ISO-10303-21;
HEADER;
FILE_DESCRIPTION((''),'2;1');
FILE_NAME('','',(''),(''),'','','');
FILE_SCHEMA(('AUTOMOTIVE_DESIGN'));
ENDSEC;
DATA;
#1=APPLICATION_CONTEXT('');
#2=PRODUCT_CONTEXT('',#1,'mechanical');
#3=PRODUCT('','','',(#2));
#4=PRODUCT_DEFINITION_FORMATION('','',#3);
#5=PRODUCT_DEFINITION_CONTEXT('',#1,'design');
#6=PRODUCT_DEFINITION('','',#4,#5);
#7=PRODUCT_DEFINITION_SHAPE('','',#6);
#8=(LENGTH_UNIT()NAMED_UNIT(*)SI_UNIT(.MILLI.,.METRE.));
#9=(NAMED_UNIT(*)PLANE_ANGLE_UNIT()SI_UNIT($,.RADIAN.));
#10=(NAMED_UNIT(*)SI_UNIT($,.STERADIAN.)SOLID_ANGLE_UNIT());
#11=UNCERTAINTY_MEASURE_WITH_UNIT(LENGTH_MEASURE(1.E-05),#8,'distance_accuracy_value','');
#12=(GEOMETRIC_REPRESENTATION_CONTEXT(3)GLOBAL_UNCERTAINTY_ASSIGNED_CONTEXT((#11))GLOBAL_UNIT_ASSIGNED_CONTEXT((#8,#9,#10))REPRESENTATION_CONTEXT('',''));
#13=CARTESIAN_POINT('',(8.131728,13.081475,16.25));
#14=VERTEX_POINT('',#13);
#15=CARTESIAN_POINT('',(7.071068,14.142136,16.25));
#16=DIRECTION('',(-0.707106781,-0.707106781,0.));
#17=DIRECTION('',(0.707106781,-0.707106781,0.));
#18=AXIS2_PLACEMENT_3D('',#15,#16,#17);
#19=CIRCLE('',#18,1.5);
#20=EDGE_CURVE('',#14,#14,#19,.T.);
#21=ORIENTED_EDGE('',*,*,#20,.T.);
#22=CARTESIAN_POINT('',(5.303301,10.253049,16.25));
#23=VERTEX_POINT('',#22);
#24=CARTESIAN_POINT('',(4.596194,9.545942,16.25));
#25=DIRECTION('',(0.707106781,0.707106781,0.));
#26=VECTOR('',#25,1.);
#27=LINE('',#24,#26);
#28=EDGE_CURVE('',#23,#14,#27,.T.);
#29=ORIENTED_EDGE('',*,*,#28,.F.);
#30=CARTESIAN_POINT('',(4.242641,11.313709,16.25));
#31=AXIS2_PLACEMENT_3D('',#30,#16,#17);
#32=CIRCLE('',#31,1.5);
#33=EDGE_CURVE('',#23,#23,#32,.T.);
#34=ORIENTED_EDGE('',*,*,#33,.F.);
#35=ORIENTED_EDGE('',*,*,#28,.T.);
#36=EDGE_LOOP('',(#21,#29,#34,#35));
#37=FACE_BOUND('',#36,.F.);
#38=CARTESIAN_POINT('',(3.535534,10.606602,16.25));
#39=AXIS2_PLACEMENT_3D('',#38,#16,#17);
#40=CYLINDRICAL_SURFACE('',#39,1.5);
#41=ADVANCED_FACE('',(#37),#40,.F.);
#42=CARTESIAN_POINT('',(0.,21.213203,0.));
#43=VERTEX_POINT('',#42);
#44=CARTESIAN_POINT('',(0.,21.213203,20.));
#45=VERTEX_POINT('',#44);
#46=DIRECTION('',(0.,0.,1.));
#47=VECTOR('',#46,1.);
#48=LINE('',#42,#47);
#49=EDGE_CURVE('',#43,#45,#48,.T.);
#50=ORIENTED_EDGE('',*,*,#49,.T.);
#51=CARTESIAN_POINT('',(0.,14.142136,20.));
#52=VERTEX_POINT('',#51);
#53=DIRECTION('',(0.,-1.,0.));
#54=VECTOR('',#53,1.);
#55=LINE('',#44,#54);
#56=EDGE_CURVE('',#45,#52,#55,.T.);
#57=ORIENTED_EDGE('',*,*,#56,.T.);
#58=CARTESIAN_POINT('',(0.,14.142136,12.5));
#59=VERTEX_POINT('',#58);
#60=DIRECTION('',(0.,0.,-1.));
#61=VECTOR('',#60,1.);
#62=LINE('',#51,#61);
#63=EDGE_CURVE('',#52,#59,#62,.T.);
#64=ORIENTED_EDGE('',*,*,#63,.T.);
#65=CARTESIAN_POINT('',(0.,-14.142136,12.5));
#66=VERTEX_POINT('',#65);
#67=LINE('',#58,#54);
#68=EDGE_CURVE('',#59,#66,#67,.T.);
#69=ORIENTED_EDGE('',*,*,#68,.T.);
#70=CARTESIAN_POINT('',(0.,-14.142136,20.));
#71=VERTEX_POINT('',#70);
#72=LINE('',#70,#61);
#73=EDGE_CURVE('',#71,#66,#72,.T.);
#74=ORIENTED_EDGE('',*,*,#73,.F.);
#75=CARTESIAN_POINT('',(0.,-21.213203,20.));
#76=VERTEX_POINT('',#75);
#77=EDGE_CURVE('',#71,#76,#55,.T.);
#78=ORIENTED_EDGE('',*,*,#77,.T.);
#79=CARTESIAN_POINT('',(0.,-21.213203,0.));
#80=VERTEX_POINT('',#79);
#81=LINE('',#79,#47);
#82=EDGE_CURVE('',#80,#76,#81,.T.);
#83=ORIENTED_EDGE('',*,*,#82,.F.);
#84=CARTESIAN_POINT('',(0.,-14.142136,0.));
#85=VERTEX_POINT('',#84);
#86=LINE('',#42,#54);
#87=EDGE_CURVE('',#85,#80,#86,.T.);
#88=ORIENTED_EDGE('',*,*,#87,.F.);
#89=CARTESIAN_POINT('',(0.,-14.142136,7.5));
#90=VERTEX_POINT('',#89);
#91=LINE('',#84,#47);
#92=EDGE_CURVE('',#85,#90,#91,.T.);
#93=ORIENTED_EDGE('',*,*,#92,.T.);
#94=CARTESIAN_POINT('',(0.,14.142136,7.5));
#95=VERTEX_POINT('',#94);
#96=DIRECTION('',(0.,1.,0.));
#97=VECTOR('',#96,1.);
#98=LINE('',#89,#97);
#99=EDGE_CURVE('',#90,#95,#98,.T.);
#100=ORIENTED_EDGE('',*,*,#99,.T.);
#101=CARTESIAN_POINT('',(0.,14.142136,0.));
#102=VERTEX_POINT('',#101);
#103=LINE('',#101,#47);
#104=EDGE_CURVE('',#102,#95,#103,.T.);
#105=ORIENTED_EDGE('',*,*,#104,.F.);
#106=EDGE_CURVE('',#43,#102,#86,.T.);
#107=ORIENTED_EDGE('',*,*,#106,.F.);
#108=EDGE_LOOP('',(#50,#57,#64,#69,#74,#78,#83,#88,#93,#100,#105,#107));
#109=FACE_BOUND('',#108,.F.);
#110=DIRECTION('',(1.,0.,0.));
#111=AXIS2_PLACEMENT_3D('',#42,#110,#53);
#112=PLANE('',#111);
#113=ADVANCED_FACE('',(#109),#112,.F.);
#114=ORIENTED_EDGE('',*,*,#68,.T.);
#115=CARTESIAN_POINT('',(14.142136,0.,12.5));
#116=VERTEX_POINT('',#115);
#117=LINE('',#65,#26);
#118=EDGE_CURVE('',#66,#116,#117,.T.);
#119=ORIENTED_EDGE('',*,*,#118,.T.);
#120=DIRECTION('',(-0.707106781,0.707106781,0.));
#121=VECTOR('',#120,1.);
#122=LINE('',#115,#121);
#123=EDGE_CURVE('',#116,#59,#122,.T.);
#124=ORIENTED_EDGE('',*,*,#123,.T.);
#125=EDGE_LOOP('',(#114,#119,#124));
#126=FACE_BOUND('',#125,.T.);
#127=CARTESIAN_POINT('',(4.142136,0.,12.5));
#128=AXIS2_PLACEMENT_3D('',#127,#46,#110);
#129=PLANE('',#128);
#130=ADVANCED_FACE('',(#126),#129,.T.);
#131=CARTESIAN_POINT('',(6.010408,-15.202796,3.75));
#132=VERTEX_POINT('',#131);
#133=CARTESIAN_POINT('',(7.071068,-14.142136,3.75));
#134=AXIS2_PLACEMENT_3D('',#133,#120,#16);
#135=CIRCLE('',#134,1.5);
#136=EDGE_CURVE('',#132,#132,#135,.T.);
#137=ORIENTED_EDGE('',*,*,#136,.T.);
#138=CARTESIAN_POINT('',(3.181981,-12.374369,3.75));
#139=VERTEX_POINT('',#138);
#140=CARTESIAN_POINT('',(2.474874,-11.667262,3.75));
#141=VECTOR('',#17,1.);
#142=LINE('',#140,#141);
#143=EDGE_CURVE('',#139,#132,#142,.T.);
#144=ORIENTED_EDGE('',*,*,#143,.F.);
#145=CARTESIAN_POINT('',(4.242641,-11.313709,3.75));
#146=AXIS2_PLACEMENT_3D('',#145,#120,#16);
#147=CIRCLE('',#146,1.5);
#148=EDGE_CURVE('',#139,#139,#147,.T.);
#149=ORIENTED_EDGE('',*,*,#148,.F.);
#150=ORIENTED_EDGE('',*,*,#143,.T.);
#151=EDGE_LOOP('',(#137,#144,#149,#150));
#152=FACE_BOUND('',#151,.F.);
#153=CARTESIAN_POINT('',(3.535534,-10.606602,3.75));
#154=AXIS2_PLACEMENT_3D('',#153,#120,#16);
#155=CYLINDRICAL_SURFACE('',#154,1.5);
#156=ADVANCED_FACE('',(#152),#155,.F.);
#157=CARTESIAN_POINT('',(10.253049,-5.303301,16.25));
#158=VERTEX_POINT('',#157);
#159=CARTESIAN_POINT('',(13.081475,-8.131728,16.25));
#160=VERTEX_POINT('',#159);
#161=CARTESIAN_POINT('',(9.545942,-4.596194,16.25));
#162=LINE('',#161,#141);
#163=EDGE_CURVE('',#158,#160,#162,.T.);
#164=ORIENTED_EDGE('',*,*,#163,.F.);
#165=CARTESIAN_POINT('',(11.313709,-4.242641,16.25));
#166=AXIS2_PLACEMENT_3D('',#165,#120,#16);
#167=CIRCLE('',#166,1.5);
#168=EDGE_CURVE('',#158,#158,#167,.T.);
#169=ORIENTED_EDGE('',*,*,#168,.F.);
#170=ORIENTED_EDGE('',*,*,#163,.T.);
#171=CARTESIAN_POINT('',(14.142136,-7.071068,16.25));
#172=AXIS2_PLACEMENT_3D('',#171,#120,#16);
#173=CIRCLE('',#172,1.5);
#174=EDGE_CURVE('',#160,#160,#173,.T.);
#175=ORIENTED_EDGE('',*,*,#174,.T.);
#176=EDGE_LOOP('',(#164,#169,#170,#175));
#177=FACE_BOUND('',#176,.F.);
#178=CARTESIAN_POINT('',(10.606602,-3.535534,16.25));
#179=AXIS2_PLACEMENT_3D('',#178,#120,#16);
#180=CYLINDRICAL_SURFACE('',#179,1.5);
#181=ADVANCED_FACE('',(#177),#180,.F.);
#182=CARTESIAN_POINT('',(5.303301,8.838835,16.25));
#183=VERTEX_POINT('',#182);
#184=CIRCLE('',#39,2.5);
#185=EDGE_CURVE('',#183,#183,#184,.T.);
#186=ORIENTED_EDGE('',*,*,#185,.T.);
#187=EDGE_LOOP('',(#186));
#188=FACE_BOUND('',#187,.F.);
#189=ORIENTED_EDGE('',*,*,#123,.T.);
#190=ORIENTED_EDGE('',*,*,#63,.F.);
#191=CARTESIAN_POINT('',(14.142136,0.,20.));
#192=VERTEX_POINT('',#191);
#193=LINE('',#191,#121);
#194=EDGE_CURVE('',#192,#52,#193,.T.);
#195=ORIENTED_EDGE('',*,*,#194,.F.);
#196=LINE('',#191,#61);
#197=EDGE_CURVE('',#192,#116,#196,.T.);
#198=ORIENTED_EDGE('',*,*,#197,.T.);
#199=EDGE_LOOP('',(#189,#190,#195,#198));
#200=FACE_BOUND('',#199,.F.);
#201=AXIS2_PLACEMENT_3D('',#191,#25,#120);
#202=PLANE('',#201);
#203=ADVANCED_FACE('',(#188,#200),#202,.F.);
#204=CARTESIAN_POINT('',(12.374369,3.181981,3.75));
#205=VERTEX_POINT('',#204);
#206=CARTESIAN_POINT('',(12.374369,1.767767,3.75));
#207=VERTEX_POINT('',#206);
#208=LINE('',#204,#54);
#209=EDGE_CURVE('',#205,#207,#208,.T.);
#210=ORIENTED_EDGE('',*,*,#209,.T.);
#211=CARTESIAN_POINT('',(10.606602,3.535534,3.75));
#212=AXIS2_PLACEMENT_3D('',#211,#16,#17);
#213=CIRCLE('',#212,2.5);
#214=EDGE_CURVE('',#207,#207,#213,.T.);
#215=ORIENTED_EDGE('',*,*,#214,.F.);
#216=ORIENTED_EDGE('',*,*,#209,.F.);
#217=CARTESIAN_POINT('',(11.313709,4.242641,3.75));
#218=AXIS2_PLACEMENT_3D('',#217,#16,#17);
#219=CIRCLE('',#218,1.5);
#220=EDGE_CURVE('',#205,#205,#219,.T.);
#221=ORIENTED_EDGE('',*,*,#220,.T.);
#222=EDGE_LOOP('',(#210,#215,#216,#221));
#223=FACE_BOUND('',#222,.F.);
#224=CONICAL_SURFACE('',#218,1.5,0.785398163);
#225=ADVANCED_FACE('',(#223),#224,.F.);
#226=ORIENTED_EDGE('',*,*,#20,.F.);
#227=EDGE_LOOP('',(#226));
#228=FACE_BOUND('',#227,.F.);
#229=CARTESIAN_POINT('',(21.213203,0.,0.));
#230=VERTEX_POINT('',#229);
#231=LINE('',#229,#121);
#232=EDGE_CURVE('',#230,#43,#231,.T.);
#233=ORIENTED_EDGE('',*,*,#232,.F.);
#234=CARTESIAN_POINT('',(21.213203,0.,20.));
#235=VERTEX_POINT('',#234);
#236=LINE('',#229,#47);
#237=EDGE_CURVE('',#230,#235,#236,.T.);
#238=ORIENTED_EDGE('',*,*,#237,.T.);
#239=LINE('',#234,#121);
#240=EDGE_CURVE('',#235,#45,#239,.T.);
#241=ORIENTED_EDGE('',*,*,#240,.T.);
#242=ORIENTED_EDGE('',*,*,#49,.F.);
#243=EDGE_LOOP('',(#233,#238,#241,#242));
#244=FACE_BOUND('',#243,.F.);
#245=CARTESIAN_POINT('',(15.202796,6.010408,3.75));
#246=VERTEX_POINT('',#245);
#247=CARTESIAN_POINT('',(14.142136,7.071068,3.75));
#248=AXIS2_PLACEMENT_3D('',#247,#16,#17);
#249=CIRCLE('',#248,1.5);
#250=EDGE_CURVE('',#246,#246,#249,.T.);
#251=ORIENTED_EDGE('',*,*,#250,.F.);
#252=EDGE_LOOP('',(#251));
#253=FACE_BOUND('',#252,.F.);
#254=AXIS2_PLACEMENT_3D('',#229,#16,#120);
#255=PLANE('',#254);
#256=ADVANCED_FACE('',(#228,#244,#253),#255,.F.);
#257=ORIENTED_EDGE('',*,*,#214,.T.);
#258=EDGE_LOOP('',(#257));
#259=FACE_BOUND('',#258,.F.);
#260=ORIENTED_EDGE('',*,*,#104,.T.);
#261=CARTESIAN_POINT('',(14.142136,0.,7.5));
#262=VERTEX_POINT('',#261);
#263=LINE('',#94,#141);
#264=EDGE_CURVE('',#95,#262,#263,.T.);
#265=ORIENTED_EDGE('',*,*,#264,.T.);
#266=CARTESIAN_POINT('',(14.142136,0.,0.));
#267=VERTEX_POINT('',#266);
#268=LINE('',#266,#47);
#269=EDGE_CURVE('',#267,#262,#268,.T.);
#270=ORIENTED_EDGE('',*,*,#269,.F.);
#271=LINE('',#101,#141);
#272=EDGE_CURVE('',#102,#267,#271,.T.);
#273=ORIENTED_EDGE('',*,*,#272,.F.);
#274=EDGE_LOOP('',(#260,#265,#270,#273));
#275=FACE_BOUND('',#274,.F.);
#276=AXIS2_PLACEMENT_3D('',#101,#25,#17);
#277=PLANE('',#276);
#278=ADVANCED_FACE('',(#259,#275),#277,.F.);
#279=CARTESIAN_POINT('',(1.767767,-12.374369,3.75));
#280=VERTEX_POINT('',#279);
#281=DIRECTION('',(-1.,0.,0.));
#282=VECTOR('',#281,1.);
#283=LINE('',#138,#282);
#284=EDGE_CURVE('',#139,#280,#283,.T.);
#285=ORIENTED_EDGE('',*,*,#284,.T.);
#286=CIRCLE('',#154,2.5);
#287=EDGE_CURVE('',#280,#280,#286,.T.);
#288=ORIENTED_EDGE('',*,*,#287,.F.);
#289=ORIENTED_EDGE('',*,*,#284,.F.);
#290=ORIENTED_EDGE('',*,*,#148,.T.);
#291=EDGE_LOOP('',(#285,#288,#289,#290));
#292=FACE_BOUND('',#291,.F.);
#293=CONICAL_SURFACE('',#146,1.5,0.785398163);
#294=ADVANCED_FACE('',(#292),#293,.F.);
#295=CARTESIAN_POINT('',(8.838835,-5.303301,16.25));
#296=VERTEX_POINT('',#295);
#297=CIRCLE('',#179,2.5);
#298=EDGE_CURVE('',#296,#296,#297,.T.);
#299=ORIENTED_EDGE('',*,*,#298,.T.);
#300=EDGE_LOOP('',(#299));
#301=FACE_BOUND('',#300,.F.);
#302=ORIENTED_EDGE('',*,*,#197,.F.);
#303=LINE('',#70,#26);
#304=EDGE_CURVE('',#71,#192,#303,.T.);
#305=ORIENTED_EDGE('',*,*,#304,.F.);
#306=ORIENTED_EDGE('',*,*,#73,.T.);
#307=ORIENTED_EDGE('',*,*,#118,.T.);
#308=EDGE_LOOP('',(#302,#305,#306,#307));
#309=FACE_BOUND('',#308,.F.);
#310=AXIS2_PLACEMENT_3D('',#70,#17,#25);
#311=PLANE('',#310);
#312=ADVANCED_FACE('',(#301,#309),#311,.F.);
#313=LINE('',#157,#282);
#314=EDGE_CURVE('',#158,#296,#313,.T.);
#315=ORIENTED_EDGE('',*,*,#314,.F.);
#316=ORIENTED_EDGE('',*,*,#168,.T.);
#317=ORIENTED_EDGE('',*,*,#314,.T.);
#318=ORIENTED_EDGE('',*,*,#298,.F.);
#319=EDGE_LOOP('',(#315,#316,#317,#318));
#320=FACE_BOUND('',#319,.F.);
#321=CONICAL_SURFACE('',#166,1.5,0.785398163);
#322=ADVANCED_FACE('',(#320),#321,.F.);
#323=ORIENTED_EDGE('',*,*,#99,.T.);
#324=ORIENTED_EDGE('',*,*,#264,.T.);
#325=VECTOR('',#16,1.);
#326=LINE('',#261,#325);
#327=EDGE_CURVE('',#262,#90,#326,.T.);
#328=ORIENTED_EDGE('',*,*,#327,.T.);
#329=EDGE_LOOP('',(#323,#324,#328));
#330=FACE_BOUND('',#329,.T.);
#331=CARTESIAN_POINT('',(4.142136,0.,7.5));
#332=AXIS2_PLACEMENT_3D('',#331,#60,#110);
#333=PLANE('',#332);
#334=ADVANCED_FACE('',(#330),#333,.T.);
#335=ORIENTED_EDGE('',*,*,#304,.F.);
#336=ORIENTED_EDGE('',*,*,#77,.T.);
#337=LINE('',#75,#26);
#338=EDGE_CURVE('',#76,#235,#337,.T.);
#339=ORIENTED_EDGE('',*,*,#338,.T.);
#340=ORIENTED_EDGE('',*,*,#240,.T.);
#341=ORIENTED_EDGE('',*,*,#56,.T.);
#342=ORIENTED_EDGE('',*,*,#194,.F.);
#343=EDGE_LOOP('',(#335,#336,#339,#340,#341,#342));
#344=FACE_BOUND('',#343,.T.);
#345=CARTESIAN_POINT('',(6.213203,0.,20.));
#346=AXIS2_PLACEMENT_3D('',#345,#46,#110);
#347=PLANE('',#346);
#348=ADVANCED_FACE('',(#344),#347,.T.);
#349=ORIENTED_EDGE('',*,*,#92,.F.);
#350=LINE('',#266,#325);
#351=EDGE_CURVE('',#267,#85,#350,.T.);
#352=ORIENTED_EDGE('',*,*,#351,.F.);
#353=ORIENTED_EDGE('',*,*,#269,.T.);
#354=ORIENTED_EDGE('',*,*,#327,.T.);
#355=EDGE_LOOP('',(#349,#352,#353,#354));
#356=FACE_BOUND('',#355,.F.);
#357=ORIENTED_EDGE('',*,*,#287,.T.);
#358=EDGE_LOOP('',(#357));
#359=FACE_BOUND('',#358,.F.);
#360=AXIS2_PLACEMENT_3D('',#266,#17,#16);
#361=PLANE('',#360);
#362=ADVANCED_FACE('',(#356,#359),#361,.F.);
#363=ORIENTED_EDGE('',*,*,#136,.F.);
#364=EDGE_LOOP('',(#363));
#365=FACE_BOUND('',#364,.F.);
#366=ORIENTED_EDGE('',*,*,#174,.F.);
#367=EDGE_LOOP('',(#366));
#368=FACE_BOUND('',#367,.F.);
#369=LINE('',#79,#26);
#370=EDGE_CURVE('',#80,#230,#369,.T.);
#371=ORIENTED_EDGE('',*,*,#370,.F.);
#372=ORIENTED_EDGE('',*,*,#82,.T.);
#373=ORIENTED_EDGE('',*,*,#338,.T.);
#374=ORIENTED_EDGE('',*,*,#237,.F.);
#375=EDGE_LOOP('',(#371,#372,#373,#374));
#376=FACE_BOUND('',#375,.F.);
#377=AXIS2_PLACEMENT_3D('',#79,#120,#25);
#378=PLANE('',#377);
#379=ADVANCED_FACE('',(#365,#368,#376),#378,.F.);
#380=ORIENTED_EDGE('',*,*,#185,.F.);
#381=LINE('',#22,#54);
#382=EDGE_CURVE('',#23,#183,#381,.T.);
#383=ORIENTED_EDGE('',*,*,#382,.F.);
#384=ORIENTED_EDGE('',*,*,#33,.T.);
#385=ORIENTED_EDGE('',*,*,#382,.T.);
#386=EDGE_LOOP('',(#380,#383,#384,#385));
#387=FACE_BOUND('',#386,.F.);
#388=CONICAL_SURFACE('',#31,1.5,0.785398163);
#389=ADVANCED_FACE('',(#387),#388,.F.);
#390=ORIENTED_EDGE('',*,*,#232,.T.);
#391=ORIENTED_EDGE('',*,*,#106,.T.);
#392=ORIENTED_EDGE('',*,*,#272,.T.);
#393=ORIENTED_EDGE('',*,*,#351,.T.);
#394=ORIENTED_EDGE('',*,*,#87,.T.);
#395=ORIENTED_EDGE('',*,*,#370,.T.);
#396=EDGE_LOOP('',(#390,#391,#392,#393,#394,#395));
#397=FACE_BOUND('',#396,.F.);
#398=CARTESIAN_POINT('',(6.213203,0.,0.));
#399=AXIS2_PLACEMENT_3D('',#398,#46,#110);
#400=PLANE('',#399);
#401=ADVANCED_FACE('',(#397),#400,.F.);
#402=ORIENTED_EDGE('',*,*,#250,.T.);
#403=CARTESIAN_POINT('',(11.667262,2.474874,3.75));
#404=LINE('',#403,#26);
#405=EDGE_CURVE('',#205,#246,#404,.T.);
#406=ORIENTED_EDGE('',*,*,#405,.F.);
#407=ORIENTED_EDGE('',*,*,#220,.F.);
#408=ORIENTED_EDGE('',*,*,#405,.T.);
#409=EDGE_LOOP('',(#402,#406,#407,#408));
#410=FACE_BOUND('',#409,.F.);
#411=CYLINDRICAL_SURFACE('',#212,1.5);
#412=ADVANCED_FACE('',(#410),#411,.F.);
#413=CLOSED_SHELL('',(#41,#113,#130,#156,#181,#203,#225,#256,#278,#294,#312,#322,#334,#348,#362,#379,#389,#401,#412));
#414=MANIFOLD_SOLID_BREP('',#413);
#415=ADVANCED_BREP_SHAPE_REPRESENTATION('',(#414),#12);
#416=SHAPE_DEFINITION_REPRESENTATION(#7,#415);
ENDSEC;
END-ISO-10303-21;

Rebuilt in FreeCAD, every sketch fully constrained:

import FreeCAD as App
import Part
import Sketcher
Q = App.Units.Quantity


def edges_at(feature, points):
    """Names of the edges that pass closest to the given points."""
    edges = feature.Shape.Edges
    near = lambda p: min(range(len(edges)), key=lambda i: edges[i].distToShape(Part.Vertex(*p))[0])
    return sorted({f"Edge{near(p) + 1}" for p in points})

doc = App.newDocument("Part")
body = doc.addObject("PartDesign::Body", "Body")

# Sketch on XY plane
sketch1 = doc.addObject("Sketcher::SketchObject", "Sketch")
body.addObject(sketch1)
sketch1.AttachmentSupport = (doc.XY_Plane, [""])
sketch1.MapMode = "FlatFace"
sketch1.addGeometry([
    Part.LineSegment(App.Vector(21, 0, 0), App.Vector(0, 21, 0)),
    Part.LineSegment(App.Vector(0, 21, 0), App.Vector(0, -21, 0)),
    Part.LineSegment(App.Vector(0, -21, 0), App.Vector(21, 0, 0)),
], False)
sketch1.addConstraint([
    Sketcher.Constraint("Coincident", 0, 2, 1, 1),
    Sketcher.Constraint("Coincident", 1, 2, 2, 1),
    Sketcher.Constraint("Coincident", 2, 2, 0, 1),
    Sketcher.Constraint("Vertical", 1),
    Sketcher.Constraint("Symmetric", 0, 2, 1, 2, -1, 1),
    Sketcher.Constraint("PointOnObject", 2, 2, -1),
    Sketcher.Constraint("Perpendicular", 0, 2),
    Sketcher.Constraint("Distance", 0, Q("29.999999 mm")),
])
pad1 = doc.addObject("PartDesign::Pad", "Pad")
body.addObject(pad1)
pad1.Profile = sketch1
pad1.Length = 20

# Sketch on XY plane
sketch2 = doc.addObject("Sketcher::SketchObject", "Sketch001")
body.addObject(sketch2)
sketch2.AttachmentSupport = (doc.XY_Plane, [""])
sketch2.MapMode = "FlatFace"
sketch2.AttachmentOffset = App.Placement(App.Vector(0, 0, 20), App.Rotation())
sketch2.addGeometry([
    Part.LineSegment(App.Vector(14, 0, 0), App.Vector(0, 14, 0)),
    Part.LineSegment(App.Vector(0, 14, 0), App.Vector(0, -14, 0)),
    Part.LineSegment(App.Vector(0, -14, 0), App.Vector(14, 0, 0)),
], False)
sketch2.addConstraint([
    Sketcher.Constraint("Coincident", 0, 2, 1, 1),
    Sketcher.Constraint("Coincident", 1, 2, 2, 1),
    Sketcher.Constraint("Coincident", 2, 2, 0, 1),
    Sketcher.Constraint("Vertical", 1),
    Sketcher.Constraint("Symmetric", 0, 2, 1, 2, -1, 1),
    Sketcher.Constraint("PointOnObject", 2, 2, -1),
    Sketcher.Constraint("Perpendicular", 0, 2),
    Sketcher.Constraint("Distance", 0, Q("20.000001 mm")),
])
pocket1 = doc.addObject("PartDesign::Pocket", "Pocket")
body.addObject(pocket1)
pocket1.Profile = sketch2
pocket1.Length = 7.5

# Sketch on XY plane
sketch3 = doc.addObject("Sketcher::SketchObject", "Sketch002")
body.addObject(sketch3)
sketch3.AttachmentSupport = (doc.XY_Plane, [""])
sketch3.MapMode = "FlatFace"
sketch3.addGeometry([
    Part.LineSegment(App.Vector(14, 0, 0), App.Vector(0, -14, 0)),
    Part.LineSegment(App.Vector(0, -14, 0), App.Vector(0, 14, 0)),
    Part.LineSegment(App.Vector(0, 14, 0), App.Vector(14, 0, 0)),
], False)
sketch3.addConstraint([
    Sketcher.Constraint("Coincident", 0, 2, 1, 1),
    Sketcher.Constraint("Coincident", 1, 2, 2, 1),
    Sketcher.Constraint("Coincident", 2, 2, 0, 1),
    Sketcher.Constraint("Vertical", 1),
    Sketcher.Constraint("Symmetric", 0, 2, 1, 2, -1, 1),
    Sketcher.Constraint("PointOnObject", 2, 2, -1),
    Sketcher.Constraint("Perpendicular", 0, 2),
    Sketcher.Constraint("Distance", 0, Q("20.000001 mm")),
])
pocket2 = doc.addObject("PartDesign::Pocket", "Pocket001")
body.addObject(pocket2)
pocket2.Profile = sketch3
pocket2.Length = 7.5
pocket2.Reversed = True

# Sketch on an angled plane
sketch4 = doc.addObject("Sketcher::SketchObject", "Sketch003")
body.addObject(sketch4)
sketch4.Placement = App.Placement(App.Vector(7.071068, 7.071068, 0), App.Rotation(App.Vector(0.707106781, -0.707106781, 0), App.Vector(0, 0, 0.999999999), App.Vector(-0.707106781, -0.707106781, 0), "ZXY"))
sketch4.addGeometry([
    Part.Circle(App.Vector(-5, 16.2, 0), App.Vector(0, 0, 1), 1.5),
    Part.Circle(App.Vector(5, 3.7, 0), App.Vector(0, 0, 1), 1.5),
], False)
sketch4.addConstraint([
    Sketcher.Constraint("Equal", 0, 1),
    Sketcher.Constraint("Diameter", 0, Q("3 mm")),
    Sketcher.Constraint("DistanceX", 0, 3, -1, 1, Q("5 mm")),
    Sketcher.Constraint("DistanceX", -1, 1, 1, 3, Q("5 mm")),
    Sketcher.Constraint("DistanceY", 1, 3, 0, 3, Q("12.5 mm")),
    Sketcher.Constraint("DistanceY", -1, 1, 0, 3, Q("16.25 mm")),
])
pocket3 = doc.addObject("PartDesign::Pocket", "Pocket002")
body.addObject(pocket3)
pocket3.Profile = sketch4
pocket3.Length = 5

# Sketch on an angled plane
sketch5 = doc.addObject("Sketcher::SketchObject", "Sketch004")
body.addObject(sketch5)
sketch5.Placement = App.Placement(App.Vector(7.071068, -7.071068, 0), App.Rotation(App.Vector(-0.707106781, -0.707106781, 0), App.Vector(0, 0, 0.999999999), App.Vector(-0.707106781, 0.707106781, 0), "ZXY"))
sketch5.addGeometry([
    Part.Circle(App.Vector(-5, 16.2, 0), App.Vector(0, 0, 1), 1.5),
    Part.Circle(App.Vector(5, 3.7, 0), App.Vector(0, 0, 1), 1.5),
], False)
sketch5.addConstraint([
    Sketcher.Constraint("Equal", 0, 1),
    Sketcher.Constraint("Diameter", 0, Q("3 mm")),
    Sketcher.Constraint("DistanceX", 0, 3, -1, 1, Q("5 mm")),
    Sketcher.Constraint("DistanceX", -1, 1, 1, 3, Q("5 mm")),
    Sketcher.Constraint("DistanceY", 1, 3, 0, 3, Q("12.5 mm")),
    Sketcher.Constraint("DistanceY", -1, 1, 0, 3, Q("16.25 mm")),
])
pocket4 = doc.addObject("PartDesign::Pocket", "Pocket003")
body.addObject(pocket4)
pocket4.Profile = sketch5
pocket4.Length = 5
doc.recompute()

chamfer = doc.addObject("PartDesign::Chamfer", "Chamfer")
body.addObject(chamfer)
chamfer.Base = (pocket4, edges_at(pocket4, [
    (11.667, -2.475, 16.25),
    (9.546, 4.596, 3.75),
    (4.596, -9.546, 3.75),
    (2.475, 11.667, 16.25),
]))
chamfer.Size = 1

doc.recompute()
